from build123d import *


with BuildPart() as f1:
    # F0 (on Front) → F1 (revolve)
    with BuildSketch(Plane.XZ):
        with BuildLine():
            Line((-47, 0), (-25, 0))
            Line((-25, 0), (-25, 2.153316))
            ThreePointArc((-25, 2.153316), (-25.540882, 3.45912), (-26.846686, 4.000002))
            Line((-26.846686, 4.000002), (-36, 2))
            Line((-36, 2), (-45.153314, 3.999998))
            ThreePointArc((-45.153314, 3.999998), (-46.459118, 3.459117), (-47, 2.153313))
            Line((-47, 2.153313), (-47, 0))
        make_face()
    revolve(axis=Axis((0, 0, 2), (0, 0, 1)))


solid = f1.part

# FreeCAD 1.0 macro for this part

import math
import FreeCAD as App
import Part
import Sketcher

V = App.Vector

doc = App.newDocument("Part")
body = doc.addObject("PartDesign::Body", "Body")

# Sketch on XZ plane
sketch1 = body.newObject("Sketcher::SketchObject", "Sketch")
sketch1.AttachmentSupport = (doc.getObject("XZ_Plane"), [""])
sketch1.MapMode = "FlatFace"
sketch1.addGeometry(Part.LineSegment(V(-47, 0, 0), V(-25, 0, 0)), False)
sketch1.addGeometry(Part.LineSegment(V(-25, 0, 0), V(-25, 2.2, 0)), False)
sketch1.addGeometry(Part.ArcOfCircle(Part.Circle(V(-26.8, 2.2, 0), V(0, 0, 1), 1.8), math.radians(0), math.radians(90)), False)
sketch1.addGeometry(Part.LineSegment(V(-26.8, 4, 0), V(-36, 2, 0)), False)
sketch1.addGeometry(Part.LineSegment(V(-36, 2, 0), V(-45.2, 4, 0)), False)
sketch1.addGeometry(Part.ArcOfCircle(Part.Circle(V(-45.2, 2.2, 0), V(0, 0, 1), 1.8), math.radians(90), math.radians(180)), False)
sketch1.addGeometry(Part.LineSegment(V(-47, 2.2, 0), V(-47, 0, 0)), False)
sketch1.addConstraint(Sketcher.Constraint("Coincident", 0, 2, 1, 1))
sketch1.addConstraint(Sketcher.Constraint("Tangent", 1, 2, 2, 1))
sketch1.addConstraint(Sketcher.Constraint("Coincident", 2, 2, 3, 1))
sketch1.addConstraint(Sketcher.Constraint("Coincident", 3, 2, 4, 1))
sketch1.addConstraint(Sketcher.Constraint("Coincident", 4, 2, 5, 1))
sketch1.addConstraint(Sketcher.Constraint("Tangent", 5, 2, 6, 1))
sketch1.addConstraint(Sketcher.Constraint("Coincident", 6, 2, 0, 1))
sketch1.addConstraint(Sketcher.Constraint("Horizontal", 0))
sketch1.addConstraint(Sketcher.Constraint("Vertical", 1))
sketch1.addConstraint(Sketcher.Constraint("Vertical", 6))
sketch1.addConstraint(Sketcher.Constraint("Equal", 2, 5))
sketch1.addConstraint(Sketcher.Constraint("PointOnObject", 0, 2, -1))
sketch1.addConstraint(Sketcher.Constraint("Vertical", 5, 3, 4, 2))
sketch1.addConstraint(Sketcher.Constraint("Equal", 3, 4))
sketch1.addConstraint(Sketcher.Constraint("DistanceX", 0, 1, 0, 2, 22.0))
sketch1.addConstraint(Sketcher.Constraint("DistanceX", 0, 2, -1, 1, 25.0))
sketch1.addConstraint(Sketcher.Constraint("DistanceY", -1, 1, 2, 2, 4.000002))
sketch1.addConstraint(Sketcher.Constraint("DistanceX", 3, 2, -1, 1, 36.0))
sketch1.addConstraint(Sketcher.Constraint("DistanceY", -1, 1, 3, 2, 2.0))
sketch1.addConstraint(Sketcher.Constraint("DistanceY", -1, 1, 4, 2, 3.999998))
sketch1.addConstraint(Sketcher.Constraint("Radius", 2, 1.846687))
revolution = body.newObject("PartDesign::Revolution", "Revolution")
revolution.Profile = sketch1
revolution.ReferenceAxis = (sketch1, ["V_Axis"])
revolution.Angle = 360

doc.recompute()
